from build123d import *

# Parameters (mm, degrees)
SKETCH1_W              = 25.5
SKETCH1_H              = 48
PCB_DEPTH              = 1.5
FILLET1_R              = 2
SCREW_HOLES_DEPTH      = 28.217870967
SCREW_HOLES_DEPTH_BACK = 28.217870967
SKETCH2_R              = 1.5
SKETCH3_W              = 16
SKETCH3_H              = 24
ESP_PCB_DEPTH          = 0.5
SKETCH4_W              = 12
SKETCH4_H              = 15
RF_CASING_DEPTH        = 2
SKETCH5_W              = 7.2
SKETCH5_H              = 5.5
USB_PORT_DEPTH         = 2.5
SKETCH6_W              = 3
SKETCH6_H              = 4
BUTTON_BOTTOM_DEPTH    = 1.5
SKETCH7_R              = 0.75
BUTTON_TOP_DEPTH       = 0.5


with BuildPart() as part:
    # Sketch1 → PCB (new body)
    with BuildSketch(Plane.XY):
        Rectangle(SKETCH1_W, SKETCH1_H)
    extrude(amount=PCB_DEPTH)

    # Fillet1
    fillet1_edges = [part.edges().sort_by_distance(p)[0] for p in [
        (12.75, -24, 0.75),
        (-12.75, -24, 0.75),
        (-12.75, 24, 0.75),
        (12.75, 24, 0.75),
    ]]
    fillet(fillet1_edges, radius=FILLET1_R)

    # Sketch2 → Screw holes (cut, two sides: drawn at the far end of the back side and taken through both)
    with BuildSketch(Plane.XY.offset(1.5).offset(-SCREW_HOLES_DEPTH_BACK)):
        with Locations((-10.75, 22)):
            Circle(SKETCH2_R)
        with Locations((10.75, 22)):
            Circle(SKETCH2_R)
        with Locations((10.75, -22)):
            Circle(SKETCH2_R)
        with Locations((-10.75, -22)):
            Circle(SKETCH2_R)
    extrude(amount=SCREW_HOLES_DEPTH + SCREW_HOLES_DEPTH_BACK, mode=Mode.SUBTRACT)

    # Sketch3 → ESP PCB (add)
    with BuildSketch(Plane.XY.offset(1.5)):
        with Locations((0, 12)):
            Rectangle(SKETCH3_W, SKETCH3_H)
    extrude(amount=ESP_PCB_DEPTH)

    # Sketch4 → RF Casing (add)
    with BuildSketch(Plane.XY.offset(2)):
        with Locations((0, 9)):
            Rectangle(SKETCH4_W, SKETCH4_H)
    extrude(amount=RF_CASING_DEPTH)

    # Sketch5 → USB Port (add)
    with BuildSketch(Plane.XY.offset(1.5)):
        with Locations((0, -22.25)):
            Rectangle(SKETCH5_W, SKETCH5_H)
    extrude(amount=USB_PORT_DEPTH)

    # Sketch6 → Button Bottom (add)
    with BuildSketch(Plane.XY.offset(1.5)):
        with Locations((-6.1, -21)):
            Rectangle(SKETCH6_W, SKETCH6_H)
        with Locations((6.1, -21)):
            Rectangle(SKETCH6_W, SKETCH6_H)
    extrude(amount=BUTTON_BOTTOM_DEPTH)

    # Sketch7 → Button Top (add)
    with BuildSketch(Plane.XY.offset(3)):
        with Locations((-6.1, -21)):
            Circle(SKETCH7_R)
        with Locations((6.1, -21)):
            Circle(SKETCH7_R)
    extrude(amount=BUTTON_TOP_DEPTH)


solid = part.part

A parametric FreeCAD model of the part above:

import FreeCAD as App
import Part
import Sketcher

V = App.Vector


def edges_at(feature, points):
    """Names of the edges that pass closest to the given points."""
    edges = feature.Shape.Edges
    near = lambda p: min(range(len(edges)), key=lambda i: edges[i].distToShape(Part.Vertex(*p))[0])
    return sorted({f"Edge{near(p) + 1}" for p in points})

doc = App.newDocument("Part")
body = doc.addObject("PartDesign::Body", "Body")

sketch1 = body.newObject("Sketcher::SketchObject", "Sketch")
sketch1.AttachmentSupport = (doc.getObject("XY_Plane"), [""])
sketch1.MapMode = "FlatFace"
sketch1.addGeometry([
    Part.LineSegment(V(-12.75, 24, 0), V(-12.75, -24, 0)),
    Part.LineSegment(V(-12.75, -24, 0), V(12.75, -24, 0)),
    Part.LineSegment(V(12.75, -24, 0), V(12.75, 24, 0)),
    Part.LineSegment(V(12.75, 24, 0), V(-12.75, 24, 0)),
], False)
sketch1.addConstraint([
    Sketcher.Constraint("Coincident", 0, 2, 1, 1),
    Sketcher.Constraint("Coincident", 1, 2, 2, 1),
    Sketcher.Constraint("Coincident", 2, 2, 3, 1),
    Sketcher.Constraint("Coincident", 3, 2, 0, 1),
    Sketcher.Constraint("Vertical", 0),
    Sketcher.Constraint("Horizontal", 1),
    Sketcher.Constraint("Vertical", 2),
    Sketcher.Constraint("Horizontal", 3),
    Sketcher.Constraint("Symmetric", 0, 2, 2, 2, -1, 1),
    Sketcher.Constraint("DistanceY", 0, 2, 0, 1, 48.0),
    Sketcher.Constraint("DistanceX", 1, 1, 1, 2, 25.5),
])
pad1 = body.newObject("PartDesign::Pad", "Pad")
pad1.Profile = sketch1
pad1.Length = 1.5
doc.recompute()

fillet = body.newObject("PartDesign::Fillet", "Fillet")
fillet.Base = (pad1, edges_at(pad1, [
    (12.75, -24, 0.75),
    (-12.75, -24, 0.75),
    (-12.75, 24, 0.75),
    (12.75, 24, 0.75),
]))
fillet.Radius = 2

sketch2 = body.newObject("Sketcher::SketchObject", "Sketch001")
sketch2.AttachmentSupport = (doc.getObject("XY_Plane"), [""])
sketch2.MapMode = "FlatFace"
sketch2.AttachmentOffset = App.Placement(V(0, 0, 1.5), App.Rotation())
sketch2.addGeometry([
    Part.Circle(V(-10.75, 22, 0), V(0, 0, 1), 1.5),
    Part.Circle(V(10.75, 22, 0), V(0, 0, 1), 1.5),
    Part.Circle(V(10.75, -22, 0), V(0, 0, 1), 1.5),
    Part.Circle(V(-10.75, -22, 0), V(0, 0, 1), 1.5),
], False)
sketch2.addConstraint([
    Sketcher.Constraint("Equal", 0, 1),
    Sketcher.Constraint("Equal", 1, 2),
    Sketcher.Constraint("Equal", 2, 3),
    Sketcher.Constraint("Symmetric", 0, 3, 2, 3, -1, 1),
    Sketcher.Constraint("Symmetric", 1, 3, 3, 3, -1, 1),
    Sketcher.Constraint("Symmetric", 0, 3, 1, 3, -2),
    Sketcher.Constraint("Diameter", 0, 3.0),
    Sketcher.Constraint("DistanceY", -1, 1, 0, 3, 22.0),
    Sketcher.Constraint("DistanceX", 0, 3, 1, 3, 21.5),
])
pocket1 = body.newObject("PartDesign::Pocket", "Pocket")
pocket1.Profile = sketch2
pocket1.Type = "ThroughAll"
pocket1.Midplane = True

sketch3 = body.newObject("Sketcher::SketchObject", "Sketch002")
sketch3.AttachmentSupport = (doc.getObject("XY_Plane"), [""])
sketch3.MapMode = "FlatFace"
sketch3.AttachmentOffset = App.Placement(V(0, 0, 1.5), App.Rotation())
sketch3.addGeometry([
    Part.LineSegment(V(-8, 24, 0), V(-8, 0, 0)),
    Part.LineSegment(V(-8, 0, 0), V(8, 0, 0)),
    Part.LineSegment(V(8, 0, 0), V(8, 24, 0)),
    Part.LineSegment(V(8, 24, 0), V(-8, 24, 0)),
], False)
sketch3.addConstraint([
    Sketcher.Constraint("Coincident", 0, 2, 1, 1),
    Sketcher.Constraint("Coincident", 1, 2, 2, 1),
    Sketcher.Constraint("Coincident", 2, 2, 3, 1),
    Sketcher.Constraint("Coincident", 3, 2, 0, 1),
    Sketcher.Constraint("Vertical", 0),
    Sketcher.Constraint("Horizontal", 1),
    Sketcher.Constraint("Vertical", 2),
    Sketcher.Constraint("Horizontal", 3),
    Sketcher.Constraint("Symmetric", 0, 2, 1, 2, -1, 1),
    Sketcher.Constraint("DistanceX", 1, 1, 1, 2, 16.0),
    Sketcher.Constraint("DistanceY", 0, 2, 0, 1, 24.0),
])
pad2 = body.newObject("PartDesign::Pad", "Pad001")
pad2.Profile = sketch3
pad2.Length = 0.5

sketch4 = body.newObject("Sketcher::SketchObject", "Sketch003")
sketch4.AttachmentSupport = (doc.getObject("XY_Plane"), [""])
sketch4.MapMode = "FlatFace"
sketch4.AttachmentOffset = App.Placement(V(0, 0, 2), App.Rotation())
sketch4.addGeometry([
    Part.LineSegment(V(-6, 16.5, 0), V(-6, 1.5, 0)),
    Part.LineSegment(V(-6, 1.5, 0), V(6, 1.5, 0)),
    Part.LineSegment(V(6, 1.5, 0), V(6, 16.5, 0)),
    Part.LineSegment(V(6, 16.5, 0), V(-6, 16.5, 0)),
], False)
sketch4.addConstraint([
    Sketcher.Constraint("Coincident", 0, 2, 1, 1),
    Sketcher.Constraint("Coincident", 1, 2, 2, 1),
    Sketcher.Constraint("Coincident", 2, 2, 3, 1),
    Sketcher.Constraint("Coincident", 3, 2, 0, 1),
    Sketcher.Constraint("Vertical", 0),
    Sketcher.Constraint("Horizontal", 1),
    Sketcher.Constraint("Vertical", 2),
    Sketcher.Constraint("Horizontal", 3),
    Sketcher.Constraint("DistanceX", 1, 1, 1, 2, 12.0),
    Sketcher.Constraint("DistanceY", 0, 2, 0, 1, 15.0),
    Sketcher.Constraint("DistanceX", 0, 2, -1, 1, 6.0),
    Sketcher.Constraint("DistanceY", -1, 1, 0, 2, 1.5),
])
pad3 = body.newObject("PartDesign::Pad", "Pad002")
pad3.Profile = sketch4
pad3.Length = 2

sketch5 = body.newObject("Sketcher::SketchObject", "Sketch004")
sketch5.AttachmentSupport = (doc.getObject("XY_Plane"), [""])
sketch5.MapMode = "FlatFace"
sketch5.AttachmentOffset = App.Placement(V(0, 0, 1.5), App.Rotation())
sketch5.addGeometry([
    Part.LineSegment(V(-3.6, -19.5, 0), V(-3.6, -25, 0)),
    Part.LineSegment(V(-3.6, -25, 0), V(3.6, -25, 0)),
    Part.LineSegment(V(3.6, -25, 0), V(3.6, -19.5, 0)),
    Part.LineSegment(V(3.6, -19.5, 0), V(-3.6, -19.5, 0)),
], False)
sketch5.addConstraint([
    Sketcher.Constraint("Coincident", 0, 2, 1, 1),
    Sketcher.Constraint("Coincident", 1, 2, 2, 1),
    Sketcher.Constraint("Coincident", 2, 2, 3, 1),
    Sketcher.Constraint("Coincident", 3, 2, 0, 1),
    Sketcher.Constraint("Vertical", 0),
    Sketcher.Constraint("Horizontal", 1),
    Sketcher.Constraint("Vertical", 2),
    Sketcher.Constraint("Horizontal", 3),
    Sketcher.Constraint("DistanceX", 1, 1, 1, 2, 7.2),
    Sketcher.Constraint("DistanceY", 0, 2, 0, 1, 5.5),
    Sketcher.Constraint("DistanceY", 0, 2, -1, 1, 25.0),
    Sketcher.Constraint("DistanceX", 0, 2, -1, 1, 3.6),
])
pad4 = body.newObject("PartDesign::Pad", "Pad003")
pad4.Profile = sketch5
pad4.Length = 2.5

sketch6 = body.newObject("Sketcher::SketchObject", "Sketch005")
sketch6.AttachmentSupport = (doc.getObject("XY_Plane"), [""])
sketch6.MapMode = "FlatFace"
sketch6.AttachmentOffset = App.Placement(V(0, 0, 1.5), App.Rotation())
sketch6.addGeometry([
    Part.LineSegment(V(-7.6, -19, 0), V(-7.6, -23, 0)),
    Part.LineSegment(V(-7.6, -23, 0), V(-4.6, -23, 0)),
    Part.LineSegment(V(-4.6, -23, 0), V(-4.6, -19, 0)),
    Part.LineSegment(V(-4.6, -19, 0), V(-7.6, -19, 0)),
    Part.LineSegment(V(4.6, -19, 0), V(4.6, -23, 0)),
    Part.LineSegment(V(4.6, -23, 0), V(7.6, -23, 0)),
    Part.LineSegment(V(7.6, -23, 0), V(7.6, -19, 0)),
    Part.LineSegment(V(7.6, -19, 0), V(4.6, -19, 0)),
], False)
sketch6.addConstraint([
    Sketcher.Constraint("Coincident", 0, 2, 1, 1),
    Sketcher.Constraint("Coincident", 1, 2, 2, 1),
    Sketcher.Constraint("Coincident", 2, 2, 3, 1),
    Sketcher.Constraint("Coincident", 3, 2, 0, 1),
    Sketcher.Constraint("Coincident", 4, 2, 5, 1),
    Sketcher.Constraint("Coincident", 5, 2, 6, 1),
    Sketcher.Constraint("Coincident", 6, 2, 7, 1),
    Sketcher.Constraint("Coincident", 7, 2, 4, 1),
    Sketcher.Constraint("Vertical", 0),
    Sketcher.Constraint("Horizontal", 1),
    Sketcher.Constraint("Vertical", 2),
    Sketcher.Constraint("Horizontal", 3),
    Sketcher.Constraint("Vertical", 4),
    Sketcher.Constraint("Horizontal", 5),
    Sketcher.Constraint("Vertical", 6),
    Sketcher.Constraint("Horizontal", 7),
    Sketcher.Constraint("Symmetric", 1, 2, 4, 2, -2),
    Sketcher.Constraint("Symmetric", 3, 2, 6, 2, -2),
    Sketcher.Constraint("DistanceX", 1, 1, 1, 2, 3.0),
    Sketcher.Constraint("DistanceY", 0, 2, 0, 1, 4.0),
    Sketcher.Constraint("DistanceY", 0, 2, -1, 1, 23.0),
    Sketcher.Constraint("DistanceX", 0, 2, -1, 1, 7.6),
])
pad5 = body.newObject("PartDesign::Pad", "Pad004")
pad5.Profile = sketch6
pad5.Length = 1.5

sketch7 = body.newObject("Sketcher::SketchObject", "Sketch006")
sketch7.AttachmentSupport = (doc.getObject("XY_Plane"), [""])
sketch7.MapMode = "FlatFace"
sketch7.AttachmentOffset = App.Placement(V(0, 0, 3), App.Rotation())
sketch7.addGeometry([
    Part.Circle(V(-6.1, -21, 0), V(0, 0, 1), 0.75),
    Part.Circle(V(6.1, -21, 0), V(0, 0, 1), 0.75),
], False)
sketch7.addConstraint([
    Sketcher.Constraint("Equal", 0, 1),
    Sketcher.Constraint("Symmetric", 0, 3, 1, 3, -2),
    Sketcher.Constraint("Diameter", 0, 1.5),
    Sketcher.Constraint("DistanceY", 0, 3, -1, 1, 21.0),
    Sketcher.Constraint("DistanceX", 0, 3, -1, 1, 6.1),
])
pad6 = body.newObject("PartDesign::Pad", "Pad005")
pad6.Profile = sketch7
pad6.Length = 0.5

doc.recompute()
